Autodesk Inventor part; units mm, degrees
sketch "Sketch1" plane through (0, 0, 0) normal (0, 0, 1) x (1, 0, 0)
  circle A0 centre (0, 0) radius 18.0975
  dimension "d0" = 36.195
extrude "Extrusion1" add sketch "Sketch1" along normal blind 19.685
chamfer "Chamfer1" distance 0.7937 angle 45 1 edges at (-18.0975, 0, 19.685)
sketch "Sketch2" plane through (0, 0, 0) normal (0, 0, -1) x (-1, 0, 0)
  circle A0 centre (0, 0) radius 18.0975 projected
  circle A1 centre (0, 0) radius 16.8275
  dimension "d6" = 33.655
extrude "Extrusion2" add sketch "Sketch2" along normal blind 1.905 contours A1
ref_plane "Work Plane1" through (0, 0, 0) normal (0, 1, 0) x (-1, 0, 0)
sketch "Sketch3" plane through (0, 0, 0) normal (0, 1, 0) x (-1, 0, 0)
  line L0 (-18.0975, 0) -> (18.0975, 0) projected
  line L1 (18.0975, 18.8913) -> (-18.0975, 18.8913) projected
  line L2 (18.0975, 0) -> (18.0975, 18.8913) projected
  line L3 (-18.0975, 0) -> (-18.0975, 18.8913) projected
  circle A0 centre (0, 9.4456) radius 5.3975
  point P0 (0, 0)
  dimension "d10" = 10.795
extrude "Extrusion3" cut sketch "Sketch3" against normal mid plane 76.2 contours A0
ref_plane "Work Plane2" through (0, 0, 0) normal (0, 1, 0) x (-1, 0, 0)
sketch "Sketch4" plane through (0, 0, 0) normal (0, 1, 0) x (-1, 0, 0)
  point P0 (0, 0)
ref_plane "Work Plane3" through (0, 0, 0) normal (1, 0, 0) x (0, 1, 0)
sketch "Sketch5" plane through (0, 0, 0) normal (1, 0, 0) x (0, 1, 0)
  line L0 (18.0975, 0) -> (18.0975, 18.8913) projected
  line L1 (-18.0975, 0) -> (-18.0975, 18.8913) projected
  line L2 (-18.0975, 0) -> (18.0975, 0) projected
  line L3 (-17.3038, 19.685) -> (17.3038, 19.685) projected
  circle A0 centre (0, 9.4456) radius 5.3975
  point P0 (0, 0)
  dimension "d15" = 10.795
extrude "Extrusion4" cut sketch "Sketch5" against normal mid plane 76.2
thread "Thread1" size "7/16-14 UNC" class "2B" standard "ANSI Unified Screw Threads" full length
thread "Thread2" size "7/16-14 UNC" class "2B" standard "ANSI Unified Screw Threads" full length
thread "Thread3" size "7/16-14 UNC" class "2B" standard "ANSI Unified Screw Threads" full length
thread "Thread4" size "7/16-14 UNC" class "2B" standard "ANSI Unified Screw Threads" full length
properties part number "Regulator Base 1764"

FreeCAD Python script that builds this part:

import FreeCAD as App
import Part
import Sketcher

V = App.Vector
Q = App.Units.Quantity


def edges_at(feature, points):
    """Names of the edges that pass closest to the given points."""
    edges = feature.Shape.Edges
    near = lambda p: min(range(len(edges)), key=lambda i: edges[i].distToShape(Part.Vertex(*p))[0])
    return sorted({f"Edge{near(p) + 1}" for p in points})

doc = App.newDocument("Part")
body = doc.addObject("PartDesign::Body", "Body")

# Sketch on XY plane
sketch1 = doc.addObject("Sketcher::SketchObject", "Sketch")
body.addObject(sketch1)
sketch1.AttachmentSupport = (doc.XY_Plane, [""])
sketch1.MapMode = "FlatFace"
sketch1.addGeometry(Part.Circle(V(0, 0, 0), V(0, 0, 1), 18.0975), False)
sketch1.addConstraint(Sketcher.Constraint("Coincident", 0, 3, -1, 1))
sketch1.addConstraint(Sketcher.Constraint("Diameter", 0, Q("1.425 in")))
pad1 = doc.addObject("PartDesign::Pad", "Pad")
body.addObject(pad1)
pad1.Profile = sketch1
pad1.Length = Q("0.775 in")
doc.recompute()

chamfer = doc.addObject("PartDesign::Chamfer", "Chamfer")
body.addObject(chamfer)
chamfer.Base = (pad1, edges_at(pad1, [(-18.098, 0, 19.685)]))
chamfer.Size = Q("0.031248 in")

# Sketch on XY plane
sketch2 = doc.addObject("Sketcher::SketchObject", "Sketch001")
body.addObject(sketch2)
sketch2.AttachmentSupport = (doc.XY_Plane, [""])
sketch2.MapMode = "FlatFace"
sketch2.addGeometry(Part.Circle(V(0, 0, 0), V(0, 0, 1), 16.8275), False)
sketch2.addConstraint(Sketcher.Constraint("Coincident", 0, 3, -1, 1))
sketch2.addConstraint(Sketcher.Constraint("Diameter", 0, Q("1.325 in")))
pad2 = doc.addObject("PartDesign::Pad", "Pad001")
body.addObject(pad2)
pad2.Profile = sketch2
pad2.Length = Q("0.075 in")
pad2.Reversed = True

# Sketch on XZ plane
sketch3 = doc.addObject("Sketcher::SketchObject", "Sketch002")
body.addObject(sketch3)
sketch3.AttachmentSupport = (doc.XZ_Plane, [""])
sketch3.MapMode = "FlatFace"
sketch3.addGeometry(Part.Circle(V(0, 9.4456, 0), V(0, 0, 1), 5.3975), False)
sketch3.addConstraint(Sketcher.Constraint("PointOnObject", 0, 3, -2))
sketch3.addConstraint(Sketcher.Constraint("Diameter", 0, Q("0.425 in")))
sketch3.addConstraint(Sketcher.Constraint("DistanceY", -1, 1, 0, 3, Q("9.4456 mm")))
pocket1 = doc.addObject("PartDesign::Pocket", "Pocket")
body.addObject(pocket1)
pocket1.Profile = sketch3
pocket1.Length = Q("3 in")
pocket1.Midplane = True

# Sketch on YZ plane
sketch4 = doc.addObject("Sketcher::SketchObject", "Sketch003")
body.addObject(sketch4)
sketch4.AttachmentSupport = (doc.YZ_Plane, [""])
sketch4.MapMode = "FlatFace"
sketch4.addGeometry(Part.Circle(V(0, 9.4456, 0), V(0, 0, 1), 5.3975), False)
sketch4.addConstraint(Sketcher.Constraint("PointOnObject", 0, 3, -2))
sketch4.addConstraint(Sketcher.Constraint("Diameter", 0, Q("0.425 in")))
sketch4.addConstraint(Sketcher.Constraint("DistanceY", -1, 1, 0, 3, Q("9.4456 mm")))
pocket2 = doc.addObject("PartDesign::Pocket", "Pocket001")
body.addObject(pocket2)
pocket2.Profile = sketch4
pocket2.Length = Q("3 in")
pocket2.Midplane = True

doc.recompute()
